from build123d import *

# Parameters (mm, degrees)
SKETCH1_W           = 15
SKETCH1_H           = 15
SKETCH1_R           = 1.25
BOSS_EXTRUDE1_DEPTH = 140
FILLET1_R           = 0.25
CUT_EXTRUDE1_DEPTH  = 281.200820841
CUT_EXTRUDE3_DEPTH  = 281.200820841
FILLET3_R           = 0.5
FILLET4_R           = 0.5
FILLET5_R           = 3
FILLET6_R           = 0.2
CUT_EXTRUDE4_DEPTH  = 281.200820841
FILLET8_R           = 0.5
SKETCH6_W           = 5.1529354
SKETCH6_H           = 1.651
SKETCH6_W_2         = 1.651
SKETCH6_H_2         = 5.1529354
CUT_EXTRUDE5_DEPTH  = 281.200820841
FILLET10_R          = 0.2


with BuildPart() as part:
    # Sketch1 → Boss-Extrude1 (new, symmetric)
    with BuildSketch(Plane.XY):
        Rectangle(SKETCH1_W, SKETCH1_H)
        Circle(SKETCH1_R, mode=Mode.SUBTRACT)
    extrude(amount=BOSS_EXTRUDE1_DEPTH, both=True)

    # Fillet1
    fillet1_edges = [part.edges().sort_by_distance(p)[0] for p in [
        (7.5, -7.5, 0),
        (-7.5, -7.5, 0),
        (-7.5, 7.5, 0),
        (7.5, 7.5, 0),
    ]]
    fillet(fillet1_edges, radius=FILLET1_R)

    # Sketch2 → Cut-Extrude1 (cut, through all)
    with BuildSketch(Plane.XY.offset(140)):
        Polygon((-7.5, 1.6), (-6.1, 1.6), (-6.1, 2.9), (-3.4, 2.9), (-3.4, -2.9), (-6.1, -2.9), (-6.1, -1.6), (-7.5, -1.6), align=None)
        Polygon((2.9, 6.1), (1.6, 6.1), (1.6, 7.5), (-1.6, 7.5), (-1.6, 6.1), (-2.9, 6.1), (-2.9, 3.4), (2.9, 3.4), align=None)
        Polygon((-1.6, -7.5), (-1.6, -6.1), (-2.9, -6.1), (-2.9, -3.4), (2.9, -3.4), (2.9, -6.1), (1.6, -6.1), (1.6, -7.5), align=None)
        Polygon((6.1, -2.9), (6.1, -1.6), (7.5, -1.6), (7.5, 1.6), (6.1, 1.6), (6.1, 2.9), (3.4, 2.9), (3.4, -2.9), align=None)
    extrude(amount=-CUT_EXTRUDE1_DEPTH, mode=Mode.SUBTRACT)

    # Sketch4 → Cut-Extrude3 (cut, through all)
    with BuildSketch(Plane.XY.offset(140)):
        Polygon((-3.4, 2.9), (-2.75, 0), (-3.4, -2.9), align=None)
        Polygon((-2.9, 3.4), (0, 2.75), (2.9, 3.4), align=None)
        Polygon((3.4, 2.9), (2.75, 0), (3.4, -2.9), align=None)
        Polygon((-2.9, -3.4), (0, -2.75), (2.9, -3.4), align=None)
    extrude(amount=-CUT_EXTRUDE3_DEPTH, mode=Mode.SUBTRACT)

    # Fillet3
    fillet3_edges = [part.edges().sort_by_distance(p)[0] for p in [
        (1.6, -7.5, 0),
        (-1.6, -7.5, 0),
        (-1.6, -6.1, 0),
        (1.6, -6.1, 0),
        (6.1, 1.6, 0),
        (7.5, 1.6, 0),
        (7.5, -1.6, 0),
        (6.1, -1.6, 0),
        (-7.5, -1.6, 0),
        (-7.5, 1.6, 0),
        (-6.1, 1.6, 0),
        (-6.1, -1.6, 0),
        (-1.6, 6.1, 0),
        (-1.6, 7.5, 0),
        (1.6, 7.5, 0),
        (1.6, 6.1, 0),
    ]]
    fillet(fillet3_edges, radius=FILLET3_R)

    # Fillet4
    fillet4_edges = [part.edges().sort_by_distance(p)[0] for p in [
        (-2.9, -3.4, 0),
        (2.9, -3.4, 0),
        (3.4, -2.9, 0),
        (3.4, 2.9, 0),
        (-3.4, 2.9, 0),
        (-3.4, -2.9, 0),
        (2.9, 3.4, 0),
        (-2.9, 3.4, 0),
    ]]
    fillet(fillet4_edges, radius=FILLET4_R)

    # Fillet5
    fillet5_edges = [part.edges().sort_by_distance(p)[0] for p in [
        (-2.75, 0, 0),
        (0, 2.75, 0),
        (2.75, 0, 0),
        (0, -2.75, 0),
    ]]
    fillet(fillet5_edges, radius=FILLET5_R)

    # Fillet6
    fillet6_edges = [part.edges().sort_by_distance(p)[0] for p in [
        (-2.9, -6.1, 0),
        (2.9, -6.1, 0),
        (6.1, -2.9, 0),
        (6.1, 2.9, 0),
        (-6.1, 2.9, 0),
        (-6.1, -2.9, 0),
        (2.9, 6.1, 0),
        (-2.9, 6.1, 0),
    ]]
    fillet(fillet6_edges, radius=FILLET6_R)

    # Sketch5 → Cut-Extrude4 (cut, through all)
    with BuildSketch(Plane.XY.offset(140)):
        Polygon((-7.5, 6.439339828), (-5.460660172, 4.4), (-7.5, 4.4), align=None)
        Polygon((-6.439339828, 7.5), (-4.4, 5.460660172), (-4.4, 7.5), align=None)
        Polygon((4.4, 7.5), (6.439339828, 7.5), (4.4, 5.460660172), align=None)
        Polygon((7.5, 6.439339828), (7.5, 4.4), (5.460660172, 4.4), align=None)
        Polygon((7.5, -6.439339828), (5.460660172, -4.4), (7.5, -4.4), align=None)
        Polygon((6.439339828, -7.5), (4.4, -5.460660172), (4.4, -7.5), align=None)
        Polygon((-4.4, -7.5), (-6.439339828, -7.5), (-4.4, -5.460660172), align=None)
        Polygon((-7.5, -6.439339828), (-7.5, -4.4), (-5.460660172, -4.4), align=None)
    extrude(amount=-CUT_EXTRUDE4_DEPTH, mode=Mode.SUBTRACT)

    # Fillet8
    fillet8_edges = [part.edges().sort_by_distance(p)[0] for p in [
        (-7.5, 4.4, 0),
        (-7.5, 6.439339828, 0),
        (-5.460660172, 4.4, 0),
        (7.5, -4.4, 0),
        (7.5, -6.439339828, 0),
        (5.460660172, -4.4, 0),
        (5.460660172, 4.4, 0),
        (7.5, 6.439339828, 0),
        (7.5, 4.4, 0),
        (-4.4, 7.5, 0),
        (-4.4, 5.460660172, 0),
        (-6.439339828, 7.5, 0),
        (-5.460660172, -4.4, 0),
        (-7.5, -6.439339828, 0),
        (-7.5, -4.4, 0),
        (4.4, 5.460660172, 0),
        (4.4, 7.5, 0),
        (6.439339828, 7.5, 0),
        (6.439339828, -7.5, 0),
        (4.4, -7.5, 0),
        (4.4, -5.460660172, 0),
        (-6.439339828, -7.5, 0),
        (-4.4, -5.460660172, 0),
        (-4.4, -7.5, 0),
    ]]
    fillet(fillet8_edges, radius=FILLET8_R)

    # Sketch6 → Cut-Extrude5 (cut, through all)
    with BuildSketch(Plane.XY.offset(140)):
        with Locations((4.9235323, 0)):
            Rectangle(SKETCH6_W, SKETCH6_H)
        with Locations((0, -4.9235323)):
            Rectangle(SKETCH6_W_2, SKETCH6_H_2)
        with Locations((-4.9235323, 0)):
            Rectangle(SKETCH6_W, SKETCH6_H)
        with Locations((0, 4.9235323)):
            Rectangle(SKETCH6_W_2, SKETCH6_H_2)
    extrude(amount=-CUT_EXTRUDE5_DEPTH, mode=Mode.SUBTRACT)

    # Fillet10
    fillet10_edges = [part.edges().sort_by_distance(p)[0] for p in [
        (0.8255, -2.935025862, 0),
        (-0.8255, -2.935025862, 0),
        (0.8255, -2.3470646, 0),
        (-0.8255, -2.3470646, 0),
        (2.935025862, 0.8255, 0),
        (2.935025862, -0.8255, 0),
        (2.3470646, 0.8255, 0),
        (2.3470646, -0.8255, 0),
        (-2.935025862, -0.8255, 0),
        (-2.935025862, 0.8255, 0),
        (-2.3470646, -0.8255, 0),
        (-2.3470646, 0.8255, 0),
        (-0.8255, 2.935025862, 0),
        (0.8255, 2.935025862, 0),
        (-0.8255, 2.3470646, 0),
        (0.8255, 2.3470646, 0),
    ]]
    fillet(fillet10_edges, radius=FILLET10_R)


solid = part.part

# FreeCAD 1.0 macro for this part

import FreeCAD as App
import Part
import Sketcher

V = App.Vector
Q = App.Units.Quantity


def edges_at(feature, points):
    """Names of the edges that pass closest to the given points."""
    edges = feature.Shape.Edges
    near = lambda p: min(range(len(edges)), key=lambda i: edges[i].distToShape(Part.Vertex(*p))[0])
    return sorted({f"Edge{near(p) + 1}" for p in points})


def add_polygon(sketch, points):
    """Adds a closed chain of lines whose ends are joined by coincident constraints."""
    first, n = sketch.GeometryCount, len(points)
    for a, b in zip(points, points[1:] + points[:1]):
        sketch.addGeometry(Part.LineSegment(App.Vector(*a, 0), App.Vector(*b, 0)), False)
    for i in range(n):
        sketch.addConstraint(Sketcher.Constraint("Coincident", first + i, 2, first + (i + 1) % n, 1))

doc = App.newDocument("Part")
params = doc.addObject("Spreadsheet::Sheet", "Params")
for row, (alias, value) in enumerate([
    ("sketch1_diameter", "2.5 mm"),
    ("sketch1_width", "15 mm"),
    ("pad1_length", "280 mm"),
    ("fillet_radius", "0.25 mm"),
    ("sketch2_width", "1.4 mm"),
    ("sketch2_width2", "2.7 mm"),
    ("sketch2_width3", "1.3 mm"),
    ("sketch2_width4", "3.2 mm"),
    ("sketch3_width", "5.8 mm"),
    ("fillet2_radius", "0.5 mm"),
    ("fillet3_radius", "0.5 mm"),
    ("fillet4_radius", "3 mm"),
    ("fillet5_radius", "0.2 mm"),
    ("fillet6_radius", "0.5 mm"),
    ("fillet7_radius", "0.2 mm"),
], start=1):
    params.set(f"A{row}", alias)
    params.set(f"B{row}", "=" + value)
    params.setAlias(f"B{row}", alias)

body = doc.addObject("PartDesign::Body", "Body")

# Sketch on XY plane
sketch1 = doc.addObject("Sketcher::SketchObject", "Sketch")
body.addObject(sketch1)
sketch1.AttachmentSupport = (doc.XY_Plane, [""])
sketch1.MapMode = "FlatFace"
add_polygon(sketch1, [(-7.5, 7.5), (-7.5, -7.5), (7.5, -7.5), (7.5, 7.5)])  # lines 0-3
sketch1.addGeometry(Part.Circle(V(0, 0, 0), V(0, 0, 1), 1.25), False)  # 4
sketch1.addConstraint(Sketcher.Constraint("Vertical", 0))
sketch1.addConstraint(Sketcher.Constraint("Horizontal", 1))
sketch1.addConstraint(Sketcher.Constraint("Vertical", 2))
sketch1.addConstraint(Sketcher.Constraint("Horizontal", 3))
sketch1.addConstraint(Sketcher.Constraint("Coincident", 4, 3, -1, 1))
sketch1.addConstraint(Sketcher.Constraint("Symmetric", 0, 2, 2, 2, -1, 1))
sketch1.addConstraint(Sketcher.Constraint("Equal", 3, 0))
sketch1.addConstraint(Sketcher.Constraint("Diameter", 4, Q("2.5 mm")))
sketch1.addConstraint(Sketcher.Constraint("DistanceX", 1, 1, 1, 2, Q("15 mm")))
sketch1.setExpression("Constraints[11]", "Params.sketch1_diameter")
sketch1.setExpression("Constraints[12]", "Params.sketch1_width")
pad1 = doc.addObject("PartDesign::Pad", "Pad")
body.addObject(pad1)
pad1.Profile = sketch1
pad1.setExpression("Length", "Params.pad1_length")
pad1.Midplane = True
doc.recompute()

fillet = doc.addObject("PartDesign::Fillet", "Fillet")
body.addObject(fillet)
fillet.Base = (pad1, edges_at(pad1, [
    (7.5, -7.5, 0),
    (-7.5, -7.5, 0),
    (-7.5, 7.5, 0),
    (7.5, 7.5, 0),
]))
fillet.setExpression("Radius", "Params.fillet_radius")

# Sketch on XY plane
sketch2 = doc.addObject("Sketcher::SketchObject", "Sketch001")
body.addObject(sketch2)
sketch2.AttachmentSupport = (doc.XY_Plane, [""])
sketch2.MapMode = "FlatFace"
sketch2.AttachmentOffset = App.Placement(V(0, 0, 140), App.Rotation())
add_polygon(sketch2, [(-6.1, 1.6), (-7.5, 1.6), (-7.5, -1.6), (-6.1, -1.6), (-6.1, -2.9), (-3.4, -2.9), (-3.4, 2.9), (-6.1, 2.9)])  # lines 0-7
add_polygon(sketch2, [(2.9, 6.1), (1.6, 6.1), (1.6, 7.5), (-1.6, 7.5), (-1.6, 6.1), (-2.9, 6.1), (-2.9, 3.4), (2.9, 3.4)])  # lines 8-15
add_polygon(sketch2, [(-1.6, -6.1), (-1.6, -7.5), (1.6, -7.5), (1.6, -6.1), (2.9, -6.1), (2.9, -3.4), (-2.9, -3.4), (-2.9, -6.1)])  # lines 16-23
add_polygon(sketch2, [(6.1, -2.9), (6.1, -1.6), (7.5, -1.6), (7.5, 1.6), (6.1, 1.6), (6.1, 2.9), (3.4, 2.9), (3.4, -2.9)])  # lines 24-31
sketch2.addConstraint(Sketcher.Constraint("Horizontal", 0))
sketch2.addConstraint(Sketcher.Constraint("Vertical", 1))
sketch2.addConstraint(Sketcher.Constraint("Horizontal", 2))
sketch2.addConstraint(Sketcher.Constraint("Vertical", 3))
sketch2.addConstraint(Sketcher.Constraint("Horizontal", 4))
sketch2.addConstraint(Sketcher.Constraint("Vertical", 5))
sketch2.addConstraint(Sketcher.Constraint("Horizontal", 6))
sketch2.addConstraint(Sketcher.Constraint("Vertical", 7))
sketch2.addConstraint(Sketcher.Constraint("Horizontal", 8))
sketch2.addConstraint(Sketcher.Constraint("Vertical", 9))
sketch2.addConstraint(Sketcher.Constraint("Horizontal", 10))
sketch2.addConstraint(Sketcher.Constraint("Vertical", 11))
sketch2.addConstraint(Sketcher.Constraint("Horizontal", 12))
sketch2.addConstraint(Sketcher.Constraint("Vertical", 13))
sketch2.addConstraint(Sketcher.Constraint("Horizontal", 14))
sketch2.addConstraint(Sketcher.Constraint("Vertical", 15))
sketch2.addConstraint(Sketcher.Constraint("Vertical", 16))
sketch2.addConstraint(Sketcher.Constraint("Horizontal", 17))
sketch2.addConstraint(Sketcher.Constraint("Vertical", 18))
sketch2.addConstraint(Sketcher.Constraint("Horizontal", 19))
sketch2.addConstraint(Sketcher.Constraint("Vertical", 20))
sketch2.addConstraint(Sketcher.Constraint("Horizontal", 21))
sketch2.addConstraint(Sketcher.Constraint("Vertical", 22))
sketch2.addConstraint(Sketcher.Constraint("Horizontal", 23))
sketch2.addConstraint(Sketcher.Constraint("Vertical", 24))
sketch2.addConstraint(Sketcher.Constraint("Horizontal", 25))
sketch2.addConstraint(Sketcher.Constraint("Vertical", 26))
sketch2.addConstraint(Sketcher.Constraint("Horizontal", 27))
sketch2.addConstraint(Sketcher.Constraint("Vertical", 28))
sketch2.addConstraint(Sketcher.Constraint("Horizontal", 29))
sketch2.addConstraint(Sketcher.Constraint("Vertical", 30))
sketch2.addConstraint(Sketcher.Constraint("Horizontal", 31))
sketch2.addConstraint(Sketcher.Constraint("Symmetric", 9, 2, 16, 2, -1, 1))
sketch2.addConstraint(Sketcher.Constraint("Symmetric", 11, 2, 18, 2, -1, 1))
sketch2.addConstraint(Sketcher.Constraint("Symmetric", 13, 2, 20, 2, -1, 1))
sketch2.addConstraint(Sketcher.Constraint("Symmetric", 15, 2, 22, 2, -1, 1))
sketch2.addConstraint(Sketcher.Constraint("Symmetric", 7, 2, 24, 2, -1, 1))
sketch2.addConstraint(Sketcher.Constraint("Symmetric", 1, 2, 26, 2, -1, 1))
sketch2.addConstraint(Sketcher.Constraint("Symmetric", 3, 2, 28, 2, -1, 1))
sketch2.addConstraint(Sketcher.Constraint("Symmetric", 5, 2, 30, 2, -1, 1))
sketch2.addConstraint(Sketcher.Constraint("Symmetric", 8, 2, 11, 2, -2))
sketch2.addConstraint(Sketcher.Constraint("Symmetric", 2, 2, 24, 2, -2))
sketch2.addConstraint(Sketcher.Constraint("Horizontal", 6, 2, 28, 2))
sketch2.addConstraint(Sketcher.Constraint("Vertical", 15, 2, 19, 2))
sketch2.addConstraint(Sketcher.Constraint("Equal", 17, 1))
sketch2.addConstraint(Sketcher.Constraint("Equal", 23, 3))
sketch2.addConstraint(Sketcher.Constraint("Equal", 27, 9))
sketch2.addConstraint(Sketcher.Constraint("Equal", 31, 13))
sketch2.addConstraint(Sketcher.Constraint("DistanceX", 0, 2, 0, 1, Q("1.4 mm")))
sketch2.addConstraint(Sketcher.Constraint("DistanceX", 4, 1, 4, 2, Q("2.7 mm")))
sketch2.addConstraint(Sketcher.Constraint("DistanceX", 8, 2, 8, 1, Q("1.3 mm")))
sketch2.addConstraint(Sketcher.Constraint("DistanceX", 10, 2, 10, 1, Q("3.2 mm")))
sketch2.addConstraint(Sketcher.Constraint("DistanceX", 5, 2, 8, 2, Q("5 mm")))
sketch2.addConstraint(Sketcher.Constraint("DistanceY", 4, 2, 8, 2, Q("9 mm")))
sketch2.setExpression("Constraints[80]", "Params.sketch2_width")
sketch2.setExpression("Constraints[81]", "Params.sketch2_width2")
sketch2.setExpression("Constraints[82]", "Params.sketch2_width3")
sketch2.setExpression("Constraints[83]", "Params.sketch2_width4")
pocket1 = doc.addObject("PartDesign::Pocket", "Pocket")
body.addObject(pocket1)
pocket1.Profile = sketch2
pocket1.Type = "ThroughAll"

# Sketch on XY plane
sketch3 = doc.addObject("Sketcher::SketchObject", "Sketch002")
body.addObject(sketch3)
sketch3.AttachmentSupport = (doc.XY_Plane, [""])
sketch3.MapMode = "FlatFace"
sketch3.AttachmentOffset = App.Placement(V(0, 0, 140), App.Rotation())
add_polygon(sketch3, [(-2.75, 0), (-3.4, 2.9), (-3.4, -2.9)])  # lines 0-2
add_polygon(sketch3, [(-2.9, 3.4), (0, 2.75), (2.9, 3.4)])  # lines 3-5
add_polygon(sketch3, [(3.4, 2.9), (2.75, 0), (3.4, -2.9)])  # lines 6-8
add_polygon(sketch3, [(0, -2.75), (-2.9, -3.4), (2.9, -3.4)])  # lines 9-11
sketch3.addConstraint(Sketcher.Constraint("Vertical", 1))
sketch3.addConstraint(Sketcher.Constraint("Horizontal", 5))
sketch3.addConstraint(Sketcher.Constraint("Vertical", 8))
sketch3.addConstraint(Sketcher.Constraint("Horizontal", 10))
sketch3.addConstraint(Sketcher.Constraint("Symmetric", 2, 2, 6, 2, -1, 1))
sketch3.addConstraint(Sketcher.Constraint("Symmetric", 0, 2, 7, 2, -1, 1))
sketch3.addConstraint(Sketcher.Constraint("Symmetric", 4, 2, 9, 2, -1, 1))
sketch3.addConstraint(Sketcher.Constraint("Symmetric", 3, 2, 11, 2, -1, 1))
sketch3.addConstraint(Sketcher.Constraint("PointOnObject", 2, 2, -1))
sketch3.addConstraint(Sketcher.Constraint("PointOnObject", 3, 2, -2))
sketch3.addConstraint(Sketcher.Constraint("Perpendicular", 2, 3))
sketch3.addConstraint(Sketcher.Constraint("Perpendicular", 0, 4))
sketch3.addConstraint(Sketcher.Constraint("Perpendicular", 3, 6))
sketch3.addConstraint(Sketcher.Constraint("Perpendicular", 6, 11))
sketch3.addConstraint(Sketcher.Constraint("Horizontal", 1, 2, 7, 2))
sketch3.addConstraint(Sketcher.Constraint("Equal", 10, 1))
sketch3.addConstraint(Sketcher.Constraint("DistanceX", 5, 2, 5, 1, Q("5.8 mm")))
sketch3.addConstraint(Sketcher.Constraint("DistanceX", 0, 2, -1, 1, Q("3.4 mm")))
sketch3.addConstraint(Sketcher.Constraint("DistanceY", -1, 1, 4, 2, Q("3.4 mm")))
sketch3.addConstraint(Sketcher.Constraint("DistanceX", 2, 2, 6, 2, Q("5.5 mm")))
sketch3.setExpression("Constraints[28]", "Params.sketch3_width")
pocket2 = doc.addObject("PartDesign::Pocket", "Pocket001")
body.addObject(pocket2)
pocket2.Profile = sketch3
pocket2.Type = "ThroughAll"
doc.recompute()

fillet2 = doc.addObject("PartDesign::Fillet", "Fillet001")
body.addObject(fillet2)
fillet2.Base = (pocket2, edges_at(pocket2, [
    (1.6, -7.5, 0),
    (-1.6, -7.5, 0),
    (-1.6, -6.1, 0),
    (1.6, -6.1, 0),
    (6.1, 1.6, 0),
    (7.5, 1.6, 0),
    (7.5, -1.6, 0),
    (6.1, -1.6, 0),
    (-7.5, -1.6, 0),
    (-7.5, 1.6, 0),
    (-6.1, 1.6, 0),
    (-6.1, -1.6, 0),
    (-1.6, 6.1, 0),
    (-1.6, 7.5, 0),
    (1.6, 7.5, 0),
    (1.6, 6.1, 0),
]))
fillet2.setExpression("Radius", "Params.fillet2_radius")
doc.recompute()

fillet3 = doc.addObject("PartDesign::Fillet", "Fillet002")
body.addObject(fillet3)
fillet3.Base = (fillet2, edges_at(fillet2, [
    (-2.9, -3.4, 0),
    (2.9, -3.4, 0),
    (3.4, -2.9, 0),
    (3.4, 2.9, 0),
    (-3.4, 2.9, 0),
    (-3.4, -2.9, 0),
    (2.9, 3.4, 0),
    (-2.9, 3.4, 0),
]))
fillet3.setExpression("Radius", "Params.fillet3_radius")
doc.recompute()

fillet4 = doc.addObject("PartDesign::Fillet", "Fillet003")
body.addObject(fillet4)
fillet4.Base = (fillet3, edges_at(fillet3, [
    (-2.75, 0, 0),
    (0, 2.75, 0),
    (2.75, 0, 0),
    (0, -2.75, 0),
]))
fillet4.setExpression("Radius", "Params.fillet4_radius")
doc.recompute()

fillet5 = doc.addObject("PartDesign::Fillet", "Fillet004")
body.addObject(fillet5)
fillet5.Base = (fillet4, edges_at(fillet4, [
    (-2.9, -6.1, 0),
    (2.9, -6.1, 0),
    (6.1, -2.9, 0),
    (6.1, 2.9, 0),
    (-6.1, 2.9, 0),
    (-6.1, -2.9, 0),
    (2.9, 6.1, 0),
    (-2.9, 6.1, 0),
]))
fillet5.setExpression("Radius", "Params.fillet5_radius")

# Sketch on XY plane
sketch4 = doc.addObject("Sketcher::SketchObject", "Sketch003")
body.addObject(sketch4)
sketch4.AttachmentSupport = (doc.XY_Plane, [""])
sketch4.MapMode = "FlatFace"
sketch4.AttachmentOffset = App.Placement(V(0, 0, 140), App.Rotation())
add_polygon(sketch4, [(-5.46066, 4.4), (-7.5, 6.43934), (-7.5, 4.4)])  # lines 0-2
add_polygon(sketch4, [(-6.43934, 7.5), (-4.4, 5.46066), (-4.4, 7.5)])  # lines 3-5
add_polygon(sketch4, [(6.43934, 7.5), (4.4, 7.5), (4.4, 5.46066)])  # lines 6-8
add_polygon(sketch4, [(7.5, 4.4), (7.5, 6.43934), (5.46066, 4.4)])  # lines 9-11
add_polygon(sketch4, [(5.46066, -4.4), (7.5, -6.43934), (7.5, -4.4)])  # lines 12-14
add_polygon(sketch4, [(6.43934, -7.5), (4.4, -5.46066), (4.4, -7.5)])  # lines 15-17
add_polygon(sketch4, [(-6.43934, -7.5), (-4.4, -7.5), (-4.4, -5.46066)])  # lines 18-20
add_polygon(sketch4, [(-7.5, -4.4), (-7.5, -6.43934), (-5.46066, -4.4)])  # lines 21-23
sketch4.addConstraint(Sketcher.Constraint("Vertical", 1))
sketch4.addConstraint(Sketcher.Constraint("Horizontal", 2))
sketch4.addConstraint(Sketcher.Constraint("Vertical", 4))
sketch4.addConstraint(Sketcher.Constraint("Horizontal", 5))
sketch4.addConstraint(Sketcher.Constraint("Horizontal", 6))
sketch4.addConstraint(Sketcher.Constraint("Vertical", 7))
sketch4.addConstraint(Sketcher.Constraint("Vertical", 9))
sketch4.addConstraint(Sketcher.Constraint("Horizontal", 11))
sketch4.addConstraint(Sketcher.Constraint("Vertical", 13))
sketch4.addConstraint(Sketcher.Constraint("Horizontal", 14))
sketch4.addConstraint(Sketcher.Constraint("Vertical", 16))
sketch4.addConstraint(Sketcher.Constraint("Horizontal", 17))
sketch4.addConstraint(Sketcher.Constraint("Horizontal", 18))
sketch4.addConstraint(Sketcher.Constraint("Vertical", 19))
sketch4.addConstraint(Sketcher.Constraint("Vertical", 21))
sketch4.addConstraint(Sketcher.Constraint("Horizontal", 23))
sketch4.addConstraint(Sketcher.Constraint("Symmetric", 0, 2, 12, 2, -1, 1))
sketch4.addConstraint(Sketcher.Constraint("Symmetric", 2, 2, 14, 2, -1, 1))
sketch4.addConstraint(Sketcher.Constraint("Symmetric", 3, 2, 15, 2, -1, 1))
sketch4.addConstraint(Sketcher.Constraint("Symmetric", 5, 2, 17, 2, -1, 1))
sketch4.addConstraint(Sketcher.Constraint("Symmetric", 6, 2, 18, 2, -1, 1))
sketch4.addConstraint(Sketcher.Constraint("Symmetric", 9, 2, 21, 2, -1, 1))
sketch4.addConstraint(Sketcher.Constraint("Symmetric", 10, 2, 22, 2, -1, 1))
sketch4.addConstraint(Sketcher.Constraint("Symmetric", 4, 2, 6, 2, -2))
sketch4.addConstraint(Sketcher.Constraint("Symmetric", 0, 2, 9, 2, -2))
sketch4.addConstraint(Sketcher.Constraint("Symmetric", 2, 2, 10, 2, -2))
sketch4.addConstraint(Sketcher.Constraint("Parallel", 0, 3))
sketch4.addConstraint(Sketcher.Constraint("Perpendicular", 3, 8))
sketch4.addConstraint(Sketcher.Constraint("Parallel", 8, 10))
sketch4.addConstraint(Sketcher.Constraint("Perpendicular", 15, 20))
sketch4.addConstraint(Sketcher.Constraint("Horizontal", 3, 2, 7, 2))
sketch4.addConstraint(Sketcher.Constraint("Horizontal", 15, 2, 19, 2))
sketch4.addConstraint(Sketcher.Constraint("Equal", 2, 5))
sketch4.addConstraint(Sketcher.Constraint("DistanceX", 0, 2, -1, 1, Q("7.5 mm")))
sketch4.addConstraint(Sketcher.Constraint("DistanceY", -1, 1, 1, 2, Q("4.4 mm")))
sketch4.addConstraint(Sketcher.Constraint("DistanceX", 3, 2, -1, 1, Q("4.4 mm")))
sketch4.addConstraint(Sketcher.Constraint("DistanceY", -1, 1, 4, 2, Q("7.5 mm")))
sketch4.addConstraint(Sketcher.Constraint("DistanceX", 2, 1, 2, 2, Q("2.03934 mm")))
pocket3 = doc.addObject("PartDesign::Pocket", "Pocket002")
body.addObject(pocket3)
pocket3.Profile = sketch4
pocket3.Type = "ThroughAll"
doc.recompute()

fillet6 = doc.addObject("PartDesign::Fillet", "Fillet005")
body.addObject(fillet6)
fillet6.Base = (pocket3, edges_at(pocket3, [
    (-7.5, 4.4, 0),
    (-7.5, 6.439, 0),
    (-5.461, 4.4, 0),
    (7.5, -4.4, 0),
    (7.5, -6.439, 0),
    (5.461, -4.4, 0),
    (5.461, 4.4, 0),
    (7.5, 6.439, 0),
    (7.5, 4.4, 0),
    (-4.4, 7.5, 0),
    (-4.4, 5.461, 0),
    (-6.439, 7.5, 0),
    (-5.461, -4.4, 0),
    (-7.5, -6.439, 0),
    (-7.5, -4.4, 0),
    (4.4, 5.461, 0),
    (4.4, 7.5, 0),
    (6.439, 7.5, 0),
    (6.439, -7.5, 0),
    (4.4, -7.5, 0),
    (4.4, -5.461, 0),
    (-6.439, -7.5, 0),
    (-4.4, -5.461, 0),
    (-4.4, -7.5, 0),
]))
fillet6.setExpression("Radius", "Params.fillet6_radius")

# Sketch on XY plane
sketch5 = doc.addObject("Sketcher::SketchObject", "Sketch004")
body.addObject(sketch5)
sketch5.AttachmentSupport = (doc.XY_Plane, [""])
sketch5.MapMode = "FlatFace"
sketch5.AttachmentOffset = App.Placement(V(0, 0, 140), App.Rotation())
add_polygon(sketch5, [(2.347065, 0.8255), (2.347065, -0.8255), (7.5, -0.8255), (7.5, 0.8255)])  # lines 0-3
add_polygon(sketch5, [(-0.8255, -2.347065), (-0.8255, -7.5), (0.8255, -7.5), (0.8255, -2.347065)])  # lines 4-7
add_polygon(sketch5, [(-7.5, 0.8255), (-7.5, -0.8255), (-2.347065, -0.8255), (-2.347065, 0.8255)])  # lines 8-11
add_polygon(sketch5, [(-0.8255, 7.5), (-0.8255, 2.347065), (0.8255, 2.347065), (0.8255, 7.5)])  # lines 12-15
sketch5.addConstraint(Sketcher.Constraint("Vertical", 0))
sketch5.addConstraint(Sketcher.Constraint("Horizontal", 1))
sketch5.addConstraint(Sketcher.Constraint("Vertical", 2))
sketch5.addConstraint(Sketcher.Constraint("Horizontal", 3))
sketch5.addConstraint(Sketcher.Constraint("Vertical", 4))
sketch5.addConstraint(Sketcher.Constraint("Horizontal", 5))
sketch5.addConstraint(Sketcher.Constraint("Vertical", 6))
sketch5.addConstraint(Sketcher.Constraint("Horizontal", 7))
sketch5.addConstraint(Sketcher.Constraint("Vertical", 8))
sketch5.addConstraint(Sketcher.Constraint("Horizontal", 9))
sketch5.addConstraint(Sketcher.Constraint("Vertical", 10))
sketch5.addConstraint(Sketcher.Constraint("Horizontal", 11))
sketch5.addConstraint(Sketcher.Constraint("Vertical", 12))
sketch5.addConstraint(Sketcher.Constraint("Horizontal", 13))
sketch5.addConstraint(Sketcher.Constraint("Vertical", 14))
sketch5.addConstraint(Sketcher.Constraint("Horizontal", 15))
sketch5.addConstraint(Sketcher.Constraint("Symmetric", 2, 2, 8, 2, -1, 1))
sketch5.addConstraint(Sketcher.Constraint("Symmetric", 0, 2, 10, 2, -1, 1))
sketch5.addConstraint(Sketcher.Constraint("Symmetric", 6, 2, 12, 2, -1, 1))
sketch5.addConstraint(Sketcher.Constraint("Symmetric", 4, 2, 14, 2, -1, 1))
sketch5.addConstraint(Sketcher.Constraint("Horizontal", 1, 2, 8, 2))
sketch5.addConstraint(Sketcher.Constraint("Vertical", 7, 2, 12, 2))
sketch5.addConstraint(Sketcher.Constraint("Equal", 15, 0))
sketch5.addConstraint(Sketcher.Constraint("Equal", 11, 4))
sketch5.addConstraint(Sketcher.Constraint("DistanceX", -1, 1, 1, 2, Q("7.5 mm")))
sketch5.addConstraint(Sketcher.Constraint("DistanceY", 4, 2, -1, 1, Q("7.5 mm")))
sketch5.addConstraint(Sketcher.Constraint("DistanceX", 5, 1, 5, 2, Q("1.651 mm")))
sketch5.addConstraint(Sketcher.Constraint("DistanceX", 1, 1, 1, 2, Q("5.152935 mm")))
pocket4 = doc.addObject("PartDesign::Pocket", "Pocket003")
body.addObject(pocket4)
pocket4.Profile = sketch5
pocket4.Type = "ThroughAll"
doc.recompute()

fillet7 = doc.addObject("PartDesign::Fillet", "Fillet006")
body.addObject(fillet7)
fillet7.Base = (pocket4, edges_at(pocket4, [
    (0.826, -2.935, 0),
    (-0.826, -2.935, 0),
    (0.826, -2.347, 0),
    (-0.826, -2.347, 0),
    (2.935, 0.826, 0),
    (2.935, -0.826, 0),
    (2.347, 0.826, 0),
    (2.347, -0.826, 0),
    (-2.935, -0.826, 0),
    (-2.935, 0.826, 0),
    (-2.347, -0.826, 0),
    (-2.347, 0.826, 0),
    (-0.826, 2.935, 0),
    (0.826, 2.935, 0),
    (-0.826, 2.347, 0),
    (0.826, 2.347, 0),
]))
fillet7.setExpression("Radius", "Params.fillet7_radius")

doc.recompute()
